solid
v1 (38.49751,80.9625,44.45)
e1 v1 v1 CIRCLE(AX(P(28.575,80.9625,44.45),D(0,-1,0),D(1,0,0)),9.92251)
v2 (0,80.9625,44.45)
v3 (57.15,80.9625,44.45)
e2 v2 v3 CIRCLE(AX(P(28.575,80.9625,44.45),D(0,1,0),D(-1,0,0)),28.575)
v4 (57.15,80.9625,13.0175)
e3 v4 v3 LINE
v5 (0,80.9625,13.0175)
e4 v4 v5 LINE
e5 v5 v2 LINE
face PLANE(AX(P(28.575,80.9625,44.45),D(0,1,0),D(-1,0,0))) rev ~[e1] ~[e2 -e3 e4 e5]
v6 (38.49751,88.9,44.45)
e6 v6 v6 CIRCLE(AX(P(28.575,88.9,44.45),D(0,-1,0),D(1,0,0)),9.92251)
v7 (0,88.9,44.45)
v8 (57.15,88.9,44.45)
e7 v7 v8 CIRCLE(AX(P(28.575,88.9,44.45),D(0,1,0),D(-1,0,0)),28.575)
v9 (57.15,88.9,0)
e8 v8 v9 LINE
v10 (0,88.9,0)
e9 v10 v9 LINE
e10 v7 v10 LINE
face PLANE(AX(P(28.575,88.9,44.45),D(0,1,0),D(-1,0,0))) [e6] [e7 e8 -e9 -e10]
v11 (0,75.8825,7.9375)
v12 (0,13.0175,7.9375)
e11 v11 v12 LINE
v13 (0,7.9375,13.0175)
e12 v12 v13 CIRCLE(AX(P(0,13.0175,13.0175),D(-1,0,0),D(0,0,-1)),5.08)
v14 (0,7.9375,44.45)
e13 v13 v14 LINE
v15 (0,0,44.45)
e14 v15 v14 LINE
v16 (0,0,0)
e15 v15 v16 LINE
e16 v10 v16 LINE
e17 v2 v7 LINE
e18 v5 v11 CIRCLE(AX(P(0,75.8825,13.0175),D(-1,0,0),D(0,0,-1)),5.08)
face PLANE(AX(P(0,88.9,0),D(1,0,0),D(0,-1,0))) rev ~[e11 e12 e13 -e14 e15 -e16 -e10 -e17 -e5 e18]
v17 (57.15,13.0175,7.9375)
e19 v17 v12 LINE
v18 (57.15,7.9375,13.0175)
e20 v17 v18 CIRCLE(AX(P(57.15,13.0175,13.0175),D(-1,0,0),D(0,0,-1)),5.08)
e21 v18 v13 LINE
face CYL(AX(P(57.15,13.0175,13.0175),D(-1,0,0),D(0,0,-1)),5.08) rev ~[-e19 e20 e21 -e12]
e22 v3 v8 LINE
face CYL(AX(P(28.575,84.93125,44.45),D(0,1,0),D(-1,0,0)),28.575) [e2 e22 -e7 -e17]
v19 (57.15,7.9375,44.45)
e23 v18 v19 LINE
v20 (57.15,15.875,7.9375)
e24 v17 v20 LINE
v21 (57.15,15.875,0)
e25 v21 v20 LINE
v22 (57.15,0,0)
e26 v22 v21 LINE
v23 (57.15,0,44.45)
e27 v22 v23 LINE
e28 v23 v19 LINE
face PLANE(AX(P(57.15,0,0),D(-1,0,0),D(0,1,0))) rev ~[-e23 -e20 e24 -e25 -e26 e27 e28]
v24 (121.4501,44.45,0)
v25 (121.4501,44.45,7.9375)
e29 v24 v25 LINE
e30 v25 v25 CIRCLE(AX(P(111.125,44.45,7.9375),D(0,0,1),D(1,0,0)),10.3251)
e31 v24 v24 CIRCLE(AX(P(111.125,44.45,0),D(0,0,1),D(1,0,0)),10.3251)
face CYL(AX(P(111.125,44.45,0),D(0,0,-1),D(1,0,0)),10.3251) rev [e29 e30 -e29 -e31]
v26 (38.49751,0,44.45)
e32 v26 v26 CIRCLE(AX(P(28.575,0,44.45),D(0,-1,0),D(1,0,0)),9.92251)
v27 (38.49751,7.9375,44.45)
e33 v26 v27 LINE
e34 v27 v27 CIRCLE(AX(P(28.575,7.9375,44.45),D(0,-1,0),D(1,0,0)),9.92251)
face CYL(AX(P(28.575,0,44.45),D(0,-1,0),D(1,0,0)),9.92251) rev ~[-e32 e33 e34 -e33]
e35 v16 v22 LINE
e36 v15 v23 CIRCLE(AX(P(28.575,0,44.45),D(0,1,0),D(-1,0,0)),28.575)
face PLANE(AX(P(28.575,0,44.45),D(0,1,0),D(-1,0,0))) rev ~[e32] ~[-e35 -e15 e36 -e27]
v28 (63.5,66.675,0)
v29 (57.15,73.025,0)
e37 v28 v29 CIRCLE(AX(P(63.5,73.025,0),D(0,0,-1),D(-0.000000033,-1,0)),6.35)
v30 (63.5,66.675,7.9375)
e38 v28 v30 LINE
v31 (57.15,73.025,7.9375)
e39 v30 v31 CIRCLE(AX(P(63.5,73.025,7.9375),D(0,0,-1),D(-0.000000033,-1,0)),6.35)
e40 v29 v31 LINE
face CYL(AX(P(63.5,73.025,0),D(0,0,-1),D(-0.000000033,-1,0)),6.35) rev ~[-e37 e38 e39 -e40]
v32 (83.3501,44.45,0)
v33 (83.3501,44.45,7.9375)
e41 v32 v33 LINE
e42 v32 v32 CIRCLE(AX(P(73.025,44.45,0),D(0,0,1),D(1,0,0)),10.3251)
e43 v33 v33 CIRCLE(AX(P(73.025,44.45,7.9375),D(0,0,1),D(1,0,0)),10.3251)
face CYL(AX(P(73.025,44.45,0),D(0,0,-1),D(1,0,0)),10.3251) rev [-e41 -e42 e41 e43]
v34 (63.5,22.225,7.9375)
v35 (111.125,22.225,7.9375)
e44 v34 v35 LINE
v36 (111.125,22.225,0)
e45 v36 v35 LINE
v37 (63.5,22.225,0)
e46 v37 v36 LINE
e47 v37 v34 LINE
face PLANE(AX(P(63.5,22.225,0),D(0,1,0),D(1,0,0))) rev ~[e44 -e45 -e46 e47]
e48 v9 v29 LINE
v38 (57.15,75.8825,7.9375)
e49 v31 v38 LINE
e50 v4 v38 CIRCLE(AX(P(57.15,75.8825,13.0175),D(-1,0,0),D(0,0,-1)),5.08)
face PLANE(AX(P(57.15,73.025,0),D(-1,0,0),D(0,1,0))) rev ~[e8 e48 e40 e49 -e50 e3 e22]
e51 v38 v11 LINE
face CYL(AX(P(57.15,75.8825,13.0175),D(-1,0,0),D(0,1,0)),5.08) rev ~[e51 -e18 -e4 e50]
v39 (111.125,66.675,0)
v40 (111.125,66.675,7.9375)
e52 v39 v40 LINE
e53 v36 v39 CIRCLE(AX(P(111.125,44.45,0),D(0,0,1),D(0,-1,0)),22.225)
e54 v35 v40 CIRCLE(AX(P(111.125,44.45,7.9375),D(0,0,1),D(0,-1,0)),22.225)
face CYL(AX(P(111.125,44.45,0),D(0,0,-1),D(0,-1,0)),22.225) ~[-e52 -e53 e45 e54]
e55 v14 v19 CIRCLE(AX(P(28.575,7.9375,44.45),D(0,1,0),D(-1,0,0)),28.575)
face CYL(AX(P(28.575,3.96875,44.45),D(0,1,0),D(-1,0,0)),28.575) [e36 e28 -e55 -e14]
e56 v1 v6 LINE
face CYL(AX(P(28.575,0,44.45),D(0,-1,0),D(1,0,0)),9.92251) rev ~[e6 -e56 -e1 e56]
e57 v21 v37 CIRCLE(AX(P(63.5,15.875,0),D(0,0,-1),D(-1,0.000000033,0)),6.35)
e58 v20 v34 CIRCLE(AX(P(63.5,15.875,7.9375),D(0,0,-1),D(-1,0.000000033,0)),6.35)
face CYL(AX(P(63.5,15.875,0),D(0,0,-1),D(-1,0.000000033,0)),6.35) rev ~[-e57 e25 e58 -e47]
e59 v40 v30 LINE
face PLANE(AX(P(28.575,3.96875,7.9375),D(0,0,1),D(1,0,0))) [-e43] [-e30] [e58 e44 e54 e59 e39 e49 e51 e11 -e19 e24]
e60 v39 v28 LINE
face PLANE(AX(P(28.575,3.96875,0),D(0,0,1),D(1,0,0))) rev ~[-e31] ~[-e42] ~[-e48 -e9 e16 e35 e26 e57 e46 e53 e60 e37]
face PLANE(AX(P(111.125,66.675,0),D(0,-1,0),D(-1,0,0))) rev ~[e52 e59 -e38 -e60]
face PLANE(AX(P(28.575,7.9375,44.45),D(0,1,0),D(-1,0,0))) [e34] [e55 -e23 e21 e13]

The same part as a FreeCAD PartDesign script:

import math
import FreeCAD as App
import Part
import Sketcher
Q = App.Units.Quantity


def edges_at(feature, points):
    """Names of the edges that pass closest to the given points."""
    edges = feature.Shape.Edges
    near = lambda p: min(range(len(edges)), key=lambda i: edges[i].distToShape(Part.Vertex(*p))[0])
    return sorted({f"Edge{near(p) + 1}" for p in points})


def add_polygon(sketch, points):
    """Adds a closed chain of lines whose ends are joined by coincident constraints."""
    first, n = sketch.GeometryCount, len(points)
    for a, b in zip(points, points[1:] + points[:1]):
        sketch.addGeometry(Part.LineSegment(App.Vector(*a, 0), App.Vector(*b, 0)), False)
    for i in range(n):
        sketch.addConstraint(Sketcher.Constraint("Coincident", first + i, 2, first + (i + 1) % n, 1))

doc = App.newDocument("Part")
body = doc.addObject("PartDesign::Body", "Body")

sketch1 = body.newObject("Sketcher::SketchObject", "Sketch")
sketch1.AttachmentSupport = (doc.getObject("XY_Plane"), [""])
sketch1.MapMode = "FlatFace"
sketch1.addGeometry(Part.LineSegment(App.Vector(0, 0, 0), App.Vector(57.15, 0, 0)), False)
sketch1.addGeometry(Part.LineSegment(App.Vector(57.15, 0, 0), App.Vector(57.15, 15.875, 0)), False)
sketch1.addGeometry(Part.ArcOfCircle(Part.Circle(App.Vector(63.5, 15.875, 0), App.Vector(0, 0, 1), 6.35), math.radians(90.000002), math.radians(179.999998)), False)
sketch1.addGeometry(Part.LineSegment(App.Vector(63.5, 22.225, 0), App.Vector(111.125, 22.225, 0)), False)
sketch1.addGeometry(Part.ArcOfCircle(Part.Circle(App.Vector(111.125, 44.45, 0), App.Vector(0, 0, 1), 22.225), math.radians(-90), math.radians(90)), False)
sketch1.addGeometry(Part.LineSegment(App.Vector(111.125, 66.675, 0), App.Vector(63.5, 66.675, 0)), False)
sketch1.addGeometry(Part.ArcOfCircle(Part.Circle(App.Vector(63.5, 73.025, 0), App.Vector(0, 0, 1), 6.35), math.radians(-179.999998), math.radians(-90.000002)), False)
sketch1.addGeometry(Part.LineSegment(App.Vector(57.15, 73.025, 0), App.Vector(57.15, 88.9, 0)), False)
sketch1.addGeometry(Part.LineSegment(App.Vector(57.15, 88.9, 0), App.Vector(0, 88.9, 0)), False)
sketch1.addGeometry(Part.LineSegment(App.Vector(0, 88.9, 0), App.Vector(0, 0, 0)), False)
sketch1.addGeometry(Part.Circle(App.Vector(73.025, 44.45, 0), App.Vector(0, 0, 1), 10.3251), False)
sketch1.addGeometry(Part.Circle(App.Vector(111.125, 44.45, 0), App.Vector(0, 0, 1), 10.3251), False)
sketch1.addConstraint(Sketcher.Constraint("Coincident", 0, 2, 1, 1))
sketch1.addConstraint(Sketcher.Constraint("Tangent", 1, 2, 2, 2))
sketch1.addConstraint(Sketcher.Constraint("Tangent", 2, 1, 3, 1))
sketch1.addConstraint(Sketcher.Constraint("Tangent", 3, 2, 4, 1))
sketch1.addConstraint(Sketcher.Constraint("Tangent", 4, 2, 5, 1))
sketch1.addConstraint(Sketcher.Constraint("Tangent", 5, 2, 6, 2))
sketch1.addConstraint(Sketcher.Constraint("Tangent", 6, 1, 7, 1))
sketch1.addConstraint(Sketcher.Constraint("Coincident", 7, 2, 8, 1))
sketch1.addConstraint(Sketcher.Constraint("Coincident", 8, 2, 9, 1))
sketch1.addConstraint(Sketcher.Constraint("Coincident", 9, 2, 0, 1))
sketch1.addConstraint(Sketcher.Constraint("Horizontal", 0))
sketch1.addConstraint(Sketcher.Constraint("Vertical", 1))
sketch1.addConstraint(Sketcher.Constraint("Horizontal", 3))
sketch1.addConstraint(Sketcher.Constraint("Horizontal", 5))
sketch1.addConstraint(Sketcher.Constraint("Vertical", 7))
sketch1.addConstraint(Sketcher.Constraint("Horizontal", 8))
sketch1.addConstraint(Sketcher.Constraint("Vertical", 9))
sketch1.addConstraint(Sketcher.Constraint("Coincident", 9, 2, -1, 1))
sketch1.addConstraint(Sketcher.Constraint("Coincident", 11, 3, 4, 3))
sketch1.addConstraint(Sketcher.Constraint("Equal", 2, 6))
sketch1.addConstraint(Sketcher.Constraint("Equal", 10, 11))
sketch1.addConstraint(Sketcher.Constraint("Horizontal", 4, 3, 10, 3))
sketch1.addConstraint(Sketcher.Constraint("Vertical", 2, 3, 6, 3))
sketch1.addConstraint(Sketcher.Constraint("Equal", 1, 7))
sketch1.addConstraint(Sketcher.Constraint("Radius", 2, Q("0.25 in")))
sketch1.addConstraint(Sketcher.Constraint("Diameter", 10, Q("0.813 in")))
sketch1.addConstraint(Sketcher.Constraint("DistanceY", 9, 2, 9, 1, Q("3.5 in")))
sketch1.addConstraint(Sketcher.Constraint("Radius", 4, Q("0.875 in")))
sketch1.addConstraint(Sketcher.Constraint("DistanceX", 0, 1, 0, 2, Q("2.25 in")))
sketch1.addConstraint(Sketcher.Constraint("DistanceX", 10, 3, 4, 3, Q("1.5 in")))
sketch1.addConstraint(Sketcher.Constraint("DistanceX", 3, 1, 3, 2, Q("1.875 in")))
pad1 = body.newObject("PartDesign::Pad", "Pad")
pad1.Profile = sketch1
pad1.Length = Q("0.3125 in")

sketch2 = body.newObject("Sketcher::SketchObject", "Sketch001")
sketch2.AttachmentSupport = (doc.getObject("XY_Plane"), [""])
sketch2.MapMode = "FlatFace"
add_polygon(sketch2, [(0, 7.9375), (0, 0), (57.15, 0), (57.15, 7.9375)])
sketch2.addConstraint(Sketcher.Constraint("Vertical", 0))
sketch2.addConstraint(Sketcher.Constraint("Horizontal", 1))
sketch2.addConstraint(Sketcher.Constraint("Vertical", 2))
sketch2.addConstraint(Sketcher.Constraint("Horizontal", 3))
sketch2.addConstraint(Sketcher.Constraint("Coincident", 0, 2, -1, 1))
sketch2.addConstraint(Sketcher.Constraint("DistanceX", 1, 1, 1, 2, Q("2.25 in")))
sketch2.addConstraint(Sketcher.Constraint("DistanceY", 0, 2, 0, 1, Q("0.3125 in")))
pad2 = body.newObject("PartDesign::Pad", "Pad001")
pad2.Profile = sketch2
pad2.Length = Q("1.75 in")

sketch3 = body.newObject("Sketcher::SketchObject", "Sketch002")
sketch3.AttachmentSupport = (doc.getObject("XY_Plane"), [""])
sketch3.MapMode = "FlatFace"
add_polygon(sketch3, [(0, 88.9), (0, 80.9625), (57.15, 80.9625), (57.15, 88.9)])
sketch3.addConstraint(Sketcher.Constraint("Vertical", 0))
sketch3.addConstraint(Sketcher.Constraint("Horizontal", 1))
sketch3.addConstraint(Sketcher.Constraint("Vertical", 2))
sketch3.addConstraint(Sketcher.Constraint("Horizontal", 3))
sketch3.addConstraint(Sketcher.Constraint("PointOnObject", 0, 2, -2))
sketch3.addConstraint(Sketcher.Constraint("DistanceX", 1, 1, 1, 2, Q("2.25 in")))
sketch3.addConstraint(Sketcher.Constraint("DistanceY", -1, 1, 2, 2, Q("3.5 in")))
sketch3.addConstraint(Sketcher.Constraint("DistanceY", 0, 2, 0, 1, Q("0.3125 in")))
pad3 = body.newObject("PartDesign::Pad", "Pad002")
pad3.Profile = sketch3
pad3.Length = Q("1.75 in")

sketch4 = body.newObject("Sketcher::SketchObject", "Sketch003")
sketch4.AttachmentSupport = (doc.getObject("XY_Plane"), [""])
sketch4.MapMode = "FlatFace"
sketch4.AttachmentOffset = App.Placement(App.Vector(0, 0, 1.75 * 25.4), App.Rotation())
add_polygon(sketch4, [(0, 7.9375), (0, 0), (28.575, 0), (28.575, 7.9375)])
sketch4.addGeometry(Part.LineSegment(App.Vector(28.575, 0, 0), App.Vector(28.575, 7.9375, 0)), True)
sketch4.addConstraint(Sketcher.Constraint("Vertical", 0))
sketch4.addConstraint(Sketcher.Constraint("Horizontal", 1))
sketch4.addConstraint(Sketcher.Constraint("Vertical", 2))
sketch4.addConstraint(Sketcher.Constraint("Horizontal", 3))
sketch4.addConstraint(Sketcher.Constraint("Vertical", 4))
sketch4.addConstraint(Sketcher.Constraint("Coincident", 0, 2, -1, 1))
sketch4.addConstraint(Sketcher.Constraint("Coincident", 4, 1, 1, 2))
sketch4.addConstraint(Sketcher.Constraint("Horizontal", 3, 2, 4, 2))
sketch4.addConstraint(Sketcher.Constraint("DistanceX", 1, 1, 1, 2, Q("1.125 in")))
sketch4.addConstraint(Sketcher.Constraint("DistanceY", 0, 2, 0, 1, Q("0.3125 in")))
revolution = body.newObject("PartDesign::Revolution", "Revolution")
revolution.Profile = sketch4
revolution.ReferenceAxis = (sketch4, ["Axis0"])
revolution.Angle = 360

sketch5 = body.newObject("Sketcher::SketchObject", "Sketch004")
sketch5.AttachmentSupport = (doc.getObject("XY_Plane"), [""])
sketch5.MapMode = "FlatFace"
sketch5.AttachmentOffset = App.Placement(App.Vector(0, 0, 1.75 * 25.4), App.Rotation())
add_polygon(sketch5, [(0, 88.9), (0, 80.9625), (28.575, 80.9625), (28.575, 88.9)])
sketch5.addGeometry(Part.LineSegment(App.Vector(28.575, 80.9625, 0), App.Vector(28.575, 88.9, 0)), True)
sketch5.addConstraint(Sketcher.Constraint("Vertical", 0))
sketch5.addConstraint(Sketcher.Constraint("Horizontal", 1))
sketch5.addConstraint(Sketcher.Constraint("Vertical", 2))
sketch5.addConstraint(Sketcher.Constraint("Horizontal", 3))
sketch5.addConstraint(Sketcher.Constraint("Vertical", 4))
sketch5.addConstraint(Sketcher.Constraint("Coincident", 4, 1, 1, 2))
sketch5.addConstraint(Sketcher.Constraint("PointOnObject", 0, 2, -2))
sketch5.addConstraint(Sketcher.Constraint("Horizontal", 3, 2, 4, 2))
sketch5.addConstraint(Sketcher.Constraint("DistanceY", -1, 1, 2, 2, Q("3.5 in")))
sketch5.addConstraint(Sketcher.Constraint("DistanceX", 1, 1, 1, 2, Q("1.125 in")))
sketch5.addConstraint(Sketcher.Constraint("DistanceY", 0, 2, 0, 1, Q("0.3125 in")))
revolution2 = body.newObject("PartDesign::Revolution", "Revolution001")
revolution2.Profile = sketch5
revolution2.ReferenceAxis = (sketch5, ["Axis0"])
revolution2.Angle = 360

sketch6 = body.newObject("Sketcher::SketchObject", "Sketch005")
sketch6.AttachmentSupport = (doc.getObject("XZ_Plane"), [""])
sketch6.MapMode = "FlatFace"
sketch6.addGeometry(Part.Circle(App.Vector(28.575, 44.45, 0), App.Vector(0, 0, 1), 9.92251), False)
sketch6.addConstraint(Sketcher.Constraint("Diameter", 0, Q("0.7813 in")))
sketch6.addConstraint(Sketcher.Constraint("DistanceY", -1, 1, 0, 3, Q("1.75 in")))
sketch6.addConstraint(Sketcher.Constraint("DistanceX", -1, 1, 0, 3, Q("1.125 in")))
pocket1 = body.newObject("PartDesign::Pocket", "Pocket")
pocket1.Profile = sketch6
pocket1.Type = "ThroughAll"
doc.recompute()

fillet = body.newObject("PartDesign::Fillet", "Fillet")
fillet.Base = (pocket1, edges_at(pocket1, [(28.575, 80.963, 7.938), (28.575, 7.938, 7.938)]))
fillet.Radius = Q("0.2 in")

doc.recompute()
